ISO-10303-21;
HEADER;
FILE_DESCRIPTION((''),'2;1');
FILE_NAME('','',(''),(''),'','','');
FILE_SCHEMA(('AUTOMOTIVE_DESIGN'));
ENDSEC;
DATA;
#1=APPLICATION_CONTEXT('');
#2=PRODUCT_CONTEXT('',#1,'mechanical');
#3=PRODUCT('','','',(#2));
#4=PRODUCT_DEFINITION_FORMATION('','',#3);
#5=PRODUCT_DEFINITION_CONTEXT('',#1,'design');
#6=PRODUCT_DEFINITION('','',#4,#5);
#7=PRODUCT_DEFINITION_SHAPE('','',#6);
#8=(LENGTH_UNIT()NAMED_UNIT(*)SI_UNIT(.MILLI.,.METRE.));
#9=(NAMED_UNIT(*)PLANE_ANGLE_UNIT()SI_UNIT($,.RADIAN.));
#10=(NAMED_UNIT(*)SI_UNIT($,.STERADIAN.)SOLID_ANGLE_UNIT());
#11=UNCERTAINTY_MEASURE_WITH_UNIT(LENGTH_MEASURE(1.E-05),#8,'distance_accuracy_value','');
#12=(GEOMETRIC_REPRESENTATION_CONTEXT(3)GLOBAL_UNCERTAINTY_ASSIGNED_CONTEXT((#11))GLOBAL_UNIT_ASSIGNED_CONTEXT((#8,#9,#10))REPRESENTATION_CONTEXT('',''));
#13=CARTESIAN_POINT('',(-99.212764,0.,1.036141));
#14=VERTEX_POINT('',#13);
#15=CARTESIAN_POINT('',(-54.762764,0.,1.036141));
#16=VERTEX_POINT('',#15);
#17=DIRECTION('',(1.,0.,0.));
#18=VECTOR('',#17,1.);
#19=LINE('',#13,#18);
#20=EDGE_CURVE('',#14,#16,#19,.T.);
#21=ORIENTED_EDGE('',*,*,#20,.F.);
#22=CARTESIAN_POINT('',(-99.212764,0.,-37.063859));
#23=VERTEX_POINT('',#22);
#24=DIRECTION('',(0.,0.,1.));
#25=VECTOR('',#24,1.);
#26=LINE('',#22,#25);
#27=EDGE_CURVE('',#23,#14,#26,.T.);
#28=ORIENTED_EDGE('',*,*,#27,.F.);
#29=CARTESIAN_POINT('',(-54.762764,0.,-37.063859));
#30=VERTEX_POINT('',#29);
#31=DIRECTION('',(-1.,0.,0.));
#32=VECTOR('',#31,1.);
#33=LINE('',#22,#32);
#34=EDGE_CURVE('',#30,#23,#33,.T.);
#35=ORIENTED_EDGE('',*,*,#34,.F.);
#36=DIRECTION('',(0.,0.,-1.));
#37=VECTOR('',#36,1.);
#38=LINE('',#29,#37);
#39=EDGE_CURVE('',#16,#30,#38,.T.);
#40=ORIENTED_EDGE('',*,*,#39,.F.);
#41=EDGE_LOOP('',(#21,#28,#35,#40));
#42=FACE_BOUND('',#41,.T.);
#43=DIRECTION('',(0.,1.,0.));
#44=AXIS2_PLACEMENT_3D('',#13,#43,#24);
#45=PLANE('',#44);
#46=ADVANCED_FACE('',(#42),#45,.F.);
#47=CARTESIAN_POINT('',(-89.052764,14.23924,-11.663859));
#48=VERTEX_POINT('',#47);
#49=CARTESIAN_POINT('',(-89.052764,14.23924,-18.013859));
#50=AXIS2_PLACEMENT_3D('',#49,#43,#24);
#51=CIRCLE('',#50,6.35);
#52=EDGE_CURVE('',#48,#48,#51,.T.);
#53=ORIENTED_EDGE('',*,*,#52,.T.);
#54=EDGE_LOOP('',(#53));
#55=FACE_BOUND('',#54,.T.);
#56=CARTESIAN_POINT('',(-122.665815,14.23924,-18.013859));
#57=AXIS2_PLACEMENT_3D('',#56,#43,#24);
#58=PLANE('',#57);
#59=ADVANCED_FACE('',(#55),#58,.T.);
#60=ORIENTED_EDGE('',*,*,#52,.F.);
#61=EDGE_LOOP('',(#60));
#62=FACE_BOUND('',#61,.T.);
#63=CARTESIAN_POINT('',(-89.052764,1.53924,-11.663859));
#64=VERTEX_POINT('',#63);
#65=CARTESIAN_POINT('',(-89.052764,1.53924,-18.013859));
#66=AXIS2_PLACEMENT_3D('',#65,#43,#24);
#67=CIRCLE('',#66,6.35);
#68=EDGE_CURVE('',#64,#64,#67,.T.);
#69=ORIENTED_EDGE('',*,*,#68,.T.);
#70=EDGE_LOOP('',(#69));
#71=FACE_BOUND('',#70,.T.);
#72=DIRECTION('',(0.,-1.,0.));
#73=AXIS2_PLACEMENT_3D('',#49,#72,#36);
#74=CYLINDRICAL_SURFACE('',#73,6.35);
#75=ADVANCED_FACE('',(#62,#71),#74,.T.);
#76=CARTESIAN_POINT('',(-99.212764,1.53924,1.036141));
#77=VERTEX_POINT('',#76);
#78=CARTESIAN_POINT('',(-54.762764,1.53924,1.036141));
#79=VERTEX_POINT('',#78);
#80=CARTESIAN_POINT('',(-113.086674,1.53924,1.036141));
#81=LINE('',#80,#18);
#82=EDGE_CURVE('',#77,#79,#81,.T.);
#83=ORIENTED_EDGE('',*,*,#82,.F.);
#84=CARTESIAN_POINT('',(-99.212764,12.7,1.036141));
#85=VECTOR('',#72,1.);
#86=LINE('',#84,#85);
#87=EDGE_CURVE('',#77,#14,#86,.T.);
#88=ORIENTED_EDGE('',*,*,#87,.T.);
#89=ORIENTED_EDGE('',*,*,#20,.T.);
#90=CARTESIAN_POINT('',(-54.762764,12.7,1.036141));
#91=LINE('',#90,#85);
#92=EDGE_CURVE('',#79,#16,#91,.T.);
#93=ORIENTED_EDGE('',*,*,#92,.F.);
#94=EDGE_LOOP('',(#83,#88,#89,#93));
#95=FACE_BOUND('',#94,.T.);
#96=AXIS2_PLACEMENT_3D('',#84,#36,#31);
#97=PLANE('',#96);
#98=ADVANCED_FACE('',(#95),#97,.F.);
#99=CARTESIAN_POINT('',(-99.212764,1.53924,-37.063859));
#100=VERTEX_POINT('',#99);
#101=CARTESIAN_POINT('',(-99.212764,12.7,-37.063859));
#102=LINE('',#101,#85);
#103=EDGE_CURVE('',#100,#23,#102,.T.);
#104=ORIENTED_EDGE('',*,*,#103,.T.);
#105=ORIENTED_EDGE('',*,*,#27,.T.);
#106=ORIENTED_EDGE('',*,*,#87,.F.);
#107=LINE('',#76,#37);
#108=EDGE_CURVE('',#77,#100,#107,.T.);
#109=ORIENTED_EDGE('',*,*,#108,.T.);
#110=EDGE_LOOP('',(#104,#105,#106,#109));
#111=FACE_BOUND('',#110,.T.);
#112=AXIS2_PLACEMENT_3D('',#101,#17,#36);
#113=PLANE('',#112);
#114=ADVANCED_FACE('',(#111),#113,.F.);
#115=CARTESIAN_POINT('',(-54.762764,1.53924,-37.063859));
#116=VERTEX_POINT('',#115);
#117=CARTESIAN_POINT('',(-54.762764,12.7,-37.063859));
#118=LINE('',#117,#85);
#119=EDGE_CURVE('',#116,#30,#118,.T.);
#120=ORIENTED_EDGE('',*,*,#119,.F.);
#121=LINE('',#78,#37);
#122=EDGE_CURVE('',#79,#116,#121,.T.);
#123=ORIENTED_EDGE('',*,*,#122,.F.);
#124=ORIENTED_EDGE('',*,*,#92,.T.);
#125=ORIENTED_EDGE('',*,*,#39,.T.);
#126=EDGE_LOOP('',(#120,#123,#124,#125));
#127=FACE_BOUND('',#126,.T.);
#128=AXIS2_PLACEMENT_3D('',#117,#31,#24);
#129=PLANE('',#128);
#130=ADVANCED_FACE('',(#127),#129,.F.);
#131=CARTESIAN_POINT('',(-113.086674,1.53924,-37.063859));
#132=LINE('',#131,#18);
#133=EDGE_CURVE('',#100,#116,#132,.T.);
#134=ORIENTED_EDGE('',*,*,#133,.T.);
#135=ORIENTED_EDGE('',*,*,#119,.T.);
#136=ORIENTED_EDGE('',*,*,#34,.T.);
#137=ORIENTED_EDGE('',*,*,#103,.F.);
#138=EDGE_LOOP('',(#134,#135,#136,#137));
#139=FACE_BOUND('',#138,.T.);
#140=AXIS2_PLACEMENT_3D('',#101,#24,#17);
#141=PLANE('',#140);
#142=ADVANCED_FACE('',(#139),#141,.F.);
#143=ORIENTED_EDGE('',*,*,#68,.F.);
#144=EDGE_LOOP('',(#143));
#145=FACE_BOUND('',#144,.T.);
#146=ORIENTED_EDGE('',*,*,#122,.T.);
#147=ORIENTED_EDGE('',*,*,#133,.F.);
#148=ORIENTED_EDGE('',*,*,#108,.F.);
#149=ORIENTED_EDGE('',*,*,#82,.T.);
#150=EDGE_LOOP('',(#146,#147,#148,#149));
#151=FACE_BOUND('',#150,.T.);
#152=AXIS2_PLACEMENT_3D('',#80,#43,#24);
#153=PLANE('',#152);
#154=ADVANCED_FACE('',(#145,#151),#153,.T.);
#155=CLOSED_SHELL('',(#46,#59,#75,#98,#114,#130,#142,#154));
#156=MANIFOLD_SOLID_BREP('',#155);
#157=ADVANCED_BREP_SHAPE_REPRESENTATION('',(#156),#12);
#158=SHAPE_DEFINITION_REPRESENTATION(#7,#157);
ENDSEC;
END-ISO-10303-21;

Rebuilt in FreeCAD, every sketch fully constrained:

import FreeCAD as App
import Part
import Sketcher

V = App.Vector
Q = App.Units.Quantity


def add_polygon(sketch, points):
    """Adds a closed chain of lines whose ends are joined by coincident constraints."""
    first, n = sketch.GeometryCount, len(points)
    for a, b in zip(points, points[1:] + points[:1]):
        sketch.addGeometry(Part.LineSegment(App.Vector(*a, 0), App.Vector(*b, 0)), False)
    for i in range(n):
        sketch.addConstraint(Sketcher.Constraint("Coincident", first + i, 2, first + (i + 1) % n, 1))

doc = App.newDocument("Part")
body = doc.addObject("PartDesign::Body", "Body")

sketch1 = body.newObject("Sketcher::SketchObject", "Sketch")
sketch1.AttachmentSupport = (doc.getObject("XZ_Plane"), [""])
sketch1.MapMode = "FlatFace"
add_polygon(sketch1, [(-99, -37), (-99, 1), (-55, 1), (-55, -37)])
sketch1.addConstraint([
    Sketcher.Constraint("Vertical", 0),
    Sketcher.Constraint("Horizontal", 1),
    Sketcher.Constraint("Vertical", 2),
    Sketcher.Constraint("Horizontal", 3),
    Sketcher.Constraint("DistanceY", 0, 1, 0, 2, Q("1.5 in")),
    Sketcher.Constraint("DistanceX", 1, 1, 1, 2, Q("1.75 in")),
    Sketcher.Constraint("DistanceY", -1, 1, 0, 2, Q("1.036141 mm")),
    Sketcher.Constraint("DistanceX", 0, 2, -1, 1, Q("99.212764 mm")),
])
pad1 = body.newObject("PartDesign::Pad", "Pad")
pad1.Profile = sketch1
pad1.Length = Q("0.5 in")
pad1.Reversed = True

sketch2 = body.newObject("Sketcher::SketchObject", "Sketch001")
sketch2.AttachmentSupport = (doc.getObject("XY_Plane"), [""])
sketch2.MapMode = "FlatFace"
sketch2.AttachmentOffset = App.Placement(V(0, 0, -37.063859), App.Rotation())
add_polygon(sketch2, [(-55, 13), (-55, 2), (-99, 2), (-99, 13)])
sketch2.addConstraint([
    Sketcher.Constraint("Vertical", 0),
    Sketcher.Constraint("Horizontal", 1),
    Sketcher.Constraint("Vertical", 2),
    Sketcher.Constraint("Horizontal", 3),
    Sketcher.Constraint("DistanceX", 1, 2, 1, 1, Q("1.75 in")),
    Sketcher.Constraint("DistanceY", -1, 1, 2, 2, Q("0.5 in")),
    Sketcher.Constraint("DistanceY", 0, 2, 0, 1, Q("0.4394 in")),
    Sketcher.Constraint("DistanceX", 0, 2, -1, 1, Q("54.762764 mm")),
])
pocket1 = body.newObject("PartDesign::Pocket", "Pocket")
pocket1.Profile = sketch2
pocket1.Type = "ThroughAll"
pocket1.Reversed = True

sketch3 = body.newObject("Sketcher::SketchObject", "Sketch002")
sketch3.AttachmentSupport = (doc.getObject("XZ_Plane"), [""])
sketch3.MapMode = "FlatFace"
sketch3.AttachmentOffset = App.Placement(V(0, 0, -0.0606 * 25.4), App.Rotation())
sketch3.addGeometry(Part.Circle(V(-89, -18, 0), V(0, 0, 1), 6), False)
sketch3.addConstraint([
    Sketcher.Constraint("Diameter", 0, Q("0.5 in")),
    Sketcher.Constraint("DistanceY", 0, 3, -1, 1, Q("18.013859 mm")),
    Sketcher.Constraint("DistanceX", 0, 3, -1, 1, Q("89.052764 mm")),
])
pad2 = body.newObject("PartDesign::Pad", "Pad001")
pad2.Profile = sketch3
pad2.Length = Q("0.5 in")
pad2.Reversed = True

doc.recompute()
